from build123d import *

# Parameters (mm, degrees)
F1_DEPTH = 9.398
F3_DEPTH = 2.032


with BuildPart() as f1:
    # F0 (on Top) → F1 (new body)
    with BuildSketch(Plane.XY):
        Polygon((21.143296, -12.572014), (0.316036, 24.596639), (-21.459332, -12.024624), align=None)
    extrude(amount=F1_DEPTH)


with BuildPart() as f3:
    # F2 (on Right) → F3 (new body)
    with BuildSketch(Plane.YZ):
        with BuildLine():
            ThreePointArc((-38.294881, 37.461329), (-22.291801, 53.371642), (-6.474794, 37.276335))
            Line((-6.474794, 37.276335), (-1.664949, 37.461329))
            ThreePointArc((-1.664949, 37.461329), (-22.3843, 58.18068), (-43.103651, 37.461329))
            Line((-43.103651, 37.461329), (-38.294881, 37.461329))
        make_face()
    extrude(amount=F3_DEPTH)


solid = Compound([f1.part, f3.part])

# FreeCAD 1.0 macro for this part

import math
import FreeCAD as App
import Part
import Sketcher
from FreeCAD import Vector
Q = App.Units.Quantity

doc = App.newDocument("Part")
body = doc.addObject("PartDesign::Body", "Body")

sketch1 = body.newObject("Sketcher::SketchObject", "Sketch")
sketch1.AttachmentSupport = (doc.getObject("XY_Plane"), [""])
sketch1.MapMode = "FlatFace"
sketch1.addGeometry([
    Part.LineSegment(Vector(21, -13, 0), Vector(0, 25, 0)),
    Part.LineSegment(Vector(0, 25, 0), Vector(-21, -12, 0)),
    Part.LineSegment(Vector(-21, -12, 0), Vector(21, -13, 0)),
], False)
sketch1.addConstraint([
    Sketcher.Constraint("Coincident", 0, 2, 1, 1),
    Sketcher.Constraint("Coincident", 1, 2, 2, 1),
    Sketcher.Constraint("Coincident", 2, 2, 0, 1),
    Sketcher.Constraint("Equal", 0, 1),
    Sketcher.Constraint("Equal", 1, 2),
    Sketcher.Constraint("DistanceY", -1, 1, 0, 2, Q("24.596639 mm")),
    Sketcher.Constraint("DistanceX", 1, 2, -1, 1, Q("21.459332 mm")),
    Sketcher.Constraint("DistanceX", 1, 2, 0, 2, Q("21.775368 mm")),
    Sketcher.Constraint("DistanceX", 0, 2, 2, 2, Q("20.82726 mm")),
])
pad1 = body.newObject("PartDesign::Pad", "Pad")
pad1.Profile = sketch1
pad1.Length = Q("0.37 in")
body2 = doc.addObject("PartDesign::Body", "Body001")

sketch2 = body2.newObject("Sketcher::SketchObject", "Sketch001")
sketch2.AttachmentSupport = (doc.getObject("YZ_Plane001"), [""])
sketch2.MapMode = "FlatFace"
sketch2.addGeometry([
    Part.ArcOfCircle(Part.Circle(Vector(-22.4, 37.5, 0), Vector(0, 0, 1), 15.9), math.radians(-1), math.radians(180)),
    Part.LineSegment(Vector(-6.5, 37.3, 0), Vector(-1.7, 37.5, 0)),
    Part.ArcOfCircle(Part.Circle(Vector(-22.4, 37.5, 0), Vector(0, 0, 1), 20.7), math.radians(0), math.radians(180)),
    Part.LineSegment(Vector(-43.1, 37.5, 0), Vector(-38.3, 37.5, 0)),
], False)
sketch2.addConstraint([
    Sketcher.Constraint("Coincident", 0, 1, 1, 1),
    Sketcher.Constraint("Coincident", 1, 2, 2, 1),
    Sketcher.Constraint("Coincident", 2, 2, 3, 1),
    Sketcher.Constraint("Coincident", 3, 2, 0, 2),
    Sketcher.Constraint("Horizontal", 3),
    Sketcher.Constraint("Coincident", 2, 3, 0, 3),
    Sketcher.Constraint("Horizontal", 2, 3, 1, 2),
    Sketcher.Constraint("Horizontal", 1, 2, 2, 2),
    Sketcher.Constraint("Radius", 0, Q("15.910581 mm")),
    Sketcher.Constraint("Radius", 2, Q("20.719351 mm")),
    Sketcher.Constraint("Distance", 1, Q("4.813401 mm")),
    Sketcher.Constraint("DistanceX", 0, 3, -1, 1, Q("22.3843 mm")),
    Sketcher.Constraint("DistanceY", -1, 1, 0, 3, Q("37.46133 mm")),
])
pad2 = body2.newObject("PartDesign::Pad", "Pad001")
pad2.Profile = sketch2
pad2.Length = Q("0.08 in")

doc.recompute()
